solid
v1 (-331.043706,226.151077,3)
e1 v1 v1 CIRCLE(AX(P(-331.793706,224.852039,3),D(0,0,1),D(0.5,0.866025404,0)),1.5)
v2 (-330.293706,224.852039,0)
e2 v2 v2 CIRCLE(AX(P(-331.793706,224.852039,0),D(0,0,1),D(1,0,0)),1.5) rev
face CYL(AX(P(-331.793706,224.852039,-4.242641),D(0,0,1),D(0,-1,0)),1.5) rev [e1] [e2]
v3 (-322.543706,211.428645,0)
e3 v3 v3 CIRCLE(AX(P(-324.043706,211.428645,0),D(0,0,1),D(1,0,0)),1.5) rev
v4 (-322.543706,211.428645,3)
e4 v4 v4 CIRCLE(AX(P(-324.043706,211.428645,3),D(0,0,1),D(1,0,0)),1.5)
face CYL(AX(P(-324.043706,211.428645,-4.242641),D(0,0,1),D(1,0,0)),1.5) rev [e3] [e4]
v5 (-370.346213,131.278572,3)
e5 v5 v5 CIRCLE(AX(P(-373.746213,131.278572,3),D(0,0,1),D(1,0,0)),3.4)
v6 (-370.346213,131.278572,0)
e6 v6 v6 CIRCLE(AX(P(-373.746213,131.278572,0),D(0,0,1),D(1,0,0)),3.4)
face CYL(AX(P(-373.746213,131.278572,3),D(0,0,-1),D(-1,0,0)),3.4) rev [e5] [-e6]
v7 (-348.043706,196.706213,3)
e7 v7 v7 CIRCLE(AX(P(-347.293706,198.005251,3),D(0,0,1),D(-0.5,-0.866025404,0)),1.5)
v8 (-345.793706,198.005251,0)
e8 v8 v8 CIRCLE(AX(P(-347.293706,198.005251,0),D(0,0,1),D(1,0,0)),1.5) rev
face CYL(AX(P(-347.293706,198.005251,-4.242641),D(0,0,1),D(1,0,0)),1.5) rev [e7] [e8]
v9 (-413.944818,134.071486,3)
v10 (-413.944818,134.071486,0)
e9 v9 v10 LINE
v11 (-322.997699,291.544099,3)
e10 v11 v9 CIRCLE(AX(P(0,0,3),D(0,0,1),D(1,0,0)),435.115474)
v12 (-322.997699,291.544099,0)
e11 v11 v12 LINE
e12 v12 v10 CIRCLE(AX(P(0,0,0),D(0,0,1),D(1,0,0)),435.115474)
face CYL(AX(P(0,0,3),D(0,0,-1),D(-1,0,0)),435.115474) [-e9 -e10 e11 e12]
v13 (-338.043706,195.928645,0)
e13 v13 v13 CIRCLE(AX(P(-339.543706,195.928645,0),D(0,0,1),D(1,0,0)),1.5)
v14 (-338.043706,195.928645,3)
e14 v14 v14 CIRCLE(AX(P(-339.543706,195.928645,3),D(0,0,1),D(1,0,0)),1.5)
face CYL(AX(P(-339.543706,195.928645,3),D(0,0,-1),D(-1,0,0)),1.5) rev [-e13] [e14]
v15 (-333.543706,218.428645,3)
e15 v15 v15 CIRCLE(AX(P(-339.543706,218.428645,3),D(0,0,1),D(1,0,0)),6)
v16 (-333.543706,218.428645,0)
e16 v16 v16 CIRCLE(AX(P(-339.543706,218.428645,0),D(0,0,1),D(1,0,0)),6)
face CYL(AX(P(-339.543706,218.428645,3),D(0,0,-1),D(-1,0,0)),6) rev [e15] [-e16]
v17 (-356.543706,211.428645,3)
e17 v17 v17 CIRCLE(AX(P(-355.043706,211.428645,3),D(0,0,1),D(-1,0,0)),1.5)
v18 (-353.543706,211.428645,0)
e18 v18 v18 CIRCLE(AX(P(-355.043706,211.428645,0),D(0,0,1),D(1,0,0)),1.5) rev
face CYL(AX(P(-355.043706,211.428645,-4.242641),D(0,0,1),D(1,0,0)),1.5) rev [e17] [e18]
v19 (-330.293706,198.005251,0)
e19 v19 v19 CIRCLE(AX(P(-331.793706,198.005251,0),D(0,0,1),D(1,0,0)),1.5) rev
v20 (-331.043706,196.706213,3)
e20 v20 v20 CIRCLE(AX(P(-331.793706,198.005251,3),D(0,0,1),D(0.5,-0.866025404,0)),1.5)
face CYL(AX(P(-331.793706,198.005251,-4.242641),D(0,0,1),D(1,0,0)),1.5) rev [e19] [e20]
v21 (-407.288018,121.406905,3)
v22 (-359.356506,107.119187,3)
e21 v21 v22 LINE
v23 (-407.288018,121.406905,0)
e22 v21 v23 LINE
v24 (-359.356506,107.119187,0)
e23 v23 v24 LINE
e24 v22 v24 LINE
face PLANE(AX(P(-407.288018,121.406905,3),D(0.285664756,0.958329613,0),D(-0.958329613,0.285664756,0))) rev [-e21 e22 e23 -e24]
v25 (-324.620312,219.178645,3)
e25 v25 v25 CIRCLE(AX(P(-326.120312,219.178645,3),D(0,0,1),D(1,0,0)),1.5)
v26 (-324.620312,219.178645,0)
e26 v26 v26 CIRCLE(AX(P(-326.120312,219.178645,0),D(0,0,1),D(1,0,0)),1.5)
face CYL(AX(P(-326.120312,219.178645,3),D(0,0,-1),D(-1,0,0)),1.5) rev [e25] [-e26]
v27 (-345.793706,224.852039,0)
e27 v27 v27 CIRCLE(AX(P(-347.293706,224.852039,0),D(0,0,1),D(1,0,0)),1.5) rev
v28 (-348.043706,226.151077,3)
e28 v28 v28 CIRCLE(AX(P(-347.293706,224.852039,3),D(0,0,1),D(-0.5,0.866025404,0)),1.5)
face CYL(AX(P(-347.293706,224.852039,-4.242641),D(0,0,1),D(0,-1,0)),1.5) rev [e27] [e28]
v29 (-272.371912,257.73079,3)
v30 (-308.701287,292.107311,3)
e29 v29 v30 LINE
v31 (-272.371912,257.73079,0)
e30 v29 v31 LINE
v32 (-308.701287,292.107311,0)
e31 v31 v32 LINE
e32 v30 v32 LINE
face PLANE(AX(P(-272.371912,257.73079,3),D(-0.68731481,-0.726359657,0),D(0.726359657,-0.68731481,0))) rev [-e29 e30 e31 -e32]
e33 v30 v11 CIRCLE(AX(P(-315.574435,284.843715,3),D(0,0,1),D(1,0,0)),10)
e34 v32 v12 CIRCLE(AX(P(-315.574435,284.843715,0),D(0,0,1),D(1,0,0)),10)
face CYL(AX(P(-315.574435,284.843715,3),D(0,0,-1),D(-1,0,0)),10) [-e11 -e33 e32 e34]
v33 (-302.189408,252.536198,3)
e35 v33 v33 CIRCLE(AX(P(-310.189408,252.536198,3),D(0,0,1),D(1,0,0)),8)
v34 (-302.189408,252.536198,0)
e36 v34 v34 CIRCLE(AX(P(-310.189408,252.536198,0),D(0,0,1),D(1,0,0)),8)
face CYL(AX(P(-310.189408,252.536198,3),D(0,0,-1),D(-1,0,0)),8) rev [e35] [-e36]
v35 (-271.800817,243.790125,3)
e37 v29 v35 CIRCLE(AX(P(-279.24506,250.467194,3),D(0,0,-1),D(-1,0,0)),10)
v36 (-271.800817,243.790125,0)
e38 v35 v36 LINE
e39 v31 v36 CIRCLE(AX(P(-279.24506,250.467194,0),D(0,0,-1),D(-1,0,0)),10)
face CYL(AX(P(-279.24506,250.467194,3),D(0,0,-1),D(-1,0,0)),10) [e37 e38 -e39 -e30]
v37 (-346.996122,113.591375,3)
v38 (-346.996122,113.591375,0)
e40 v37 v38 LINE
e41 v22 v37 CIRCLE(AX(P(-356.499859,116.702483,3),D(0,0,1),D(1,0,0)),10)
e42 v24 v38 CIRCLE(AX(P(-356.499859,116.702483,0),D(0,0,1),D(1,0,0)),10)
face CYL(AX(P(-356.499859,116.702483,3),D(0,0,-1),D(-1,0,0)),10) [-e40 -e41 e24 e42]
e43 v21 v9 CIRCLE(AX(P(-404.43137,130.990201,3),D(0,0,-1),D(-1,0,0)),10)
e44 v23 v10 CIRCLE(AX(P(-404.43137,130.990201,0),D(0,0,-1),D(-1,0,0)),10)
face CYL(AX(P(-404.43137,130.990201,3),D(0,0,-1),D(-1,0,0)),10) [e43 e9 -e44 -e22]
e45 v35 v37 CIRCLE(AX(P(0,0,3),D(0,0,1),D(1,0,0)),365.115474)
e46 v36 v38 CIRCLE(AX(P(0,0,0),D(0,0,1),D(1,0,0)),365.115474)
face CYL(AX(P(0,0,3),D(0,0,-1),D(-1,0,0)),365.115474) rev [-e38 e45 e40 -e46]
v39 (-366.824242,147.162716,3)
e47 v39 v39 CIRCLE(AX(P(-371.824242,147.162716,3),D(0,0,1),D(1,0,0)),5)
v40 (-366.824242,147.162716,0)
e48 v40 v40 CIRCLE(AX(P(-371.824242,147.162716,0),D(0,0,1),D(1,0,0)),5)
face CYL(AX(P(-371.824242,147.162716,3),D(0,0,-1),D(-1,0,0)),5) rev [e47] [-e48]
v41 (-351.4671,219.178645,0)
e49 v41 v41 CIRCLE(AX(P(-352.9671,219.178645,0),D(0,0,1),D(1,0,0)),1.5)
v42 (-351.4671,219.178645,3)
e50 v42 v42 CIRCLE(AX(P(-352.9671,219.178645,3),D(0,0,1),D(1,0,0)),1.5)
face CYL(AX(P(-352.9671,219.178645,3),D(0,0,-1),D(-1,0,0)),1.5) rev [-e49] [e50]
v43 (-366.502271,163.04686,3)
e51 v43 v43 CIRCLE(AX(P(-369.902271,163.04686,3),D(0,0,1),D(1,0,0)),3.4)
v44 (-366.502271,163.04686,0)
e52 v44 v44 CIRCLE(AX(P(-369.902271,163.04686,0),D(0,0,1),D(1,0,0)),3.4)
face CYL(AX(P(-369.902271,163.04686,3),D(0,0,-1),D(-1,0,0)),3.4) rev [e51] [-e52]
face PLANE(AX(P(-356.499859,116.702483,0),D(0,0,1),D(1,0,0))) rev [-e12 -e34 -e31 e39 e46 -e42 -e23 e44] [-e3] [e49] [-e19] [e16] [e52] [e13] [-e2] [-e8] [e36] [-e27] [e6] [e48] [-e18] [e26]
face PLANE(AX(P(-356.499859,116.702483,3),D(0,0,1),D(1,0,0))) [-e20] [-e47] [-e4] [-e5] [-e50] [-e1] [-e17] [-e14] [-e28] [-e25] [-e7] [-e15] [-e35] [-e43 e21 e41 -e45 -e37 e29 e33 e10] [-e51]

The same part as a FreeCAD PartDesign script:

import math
import FreeCAD as App
import Part
import Sketcher
from FreeCAD import Vector

doc = App.newDocument("Part")
body = doc.addObject("PartDesign::Body", "Body")

# Sketch on XY plane
sketch1 = doc.addObject("Sketcher::SketchObject", "Sketch")
body.addObject(sketch1)
sketch1.AttachmentSupport = (doc.XY_Plane, [""])
sketch1.MapMode = "FlatFace"
sketch1.addGeometry([
    Part.ArcOfCircle(Part.Circle(Vector(-279.2, 250.5, 0), Vector(0, 0, 1), 10), math.radians(-42), math.radians(47)),  # 0
    Part.LineSegment(Vector(-272.4, 257.7, 0), Vector(-308.7, 292.1, 0)),  # 1
    Part.ArcOfCircle(Part.Circle(Vector(-315.6, 284.8, 0), Vector(0, 0, 1), 10), math.radians(47), math.radians(138)),  # 2
    Part.ArcOfCircle(Part.Circle(Vector(0, 0, 0), Vector(0, 0, 1), 435.1), math.radians(138), math.radians(162)),  # 3
    Part.ArcOfCircle(Part.Circle(Vector(-404.4, 131, 0), Vector(0, 0, 1), 10), math.radians(162), math.radians(253)),  # 4
    Part.LineSegment(Vector(-407.3, 121.4, 0), Vector(-359.4, 107.1, 0)),  # 5
    Part.ArcOfCircle(Part.Circle(Vector(-356.5, 116.7, 0), Vector(0, 0, 1), 10), math.radians(-107), math.radians(-18)),  # 6
    Part.ArcOfCircle(Part.Circle(Vector(0, 0, 0), Vector(0, 0, 1), 365.1), math.radians(138), math.radians(162)),  # 7
    Part.Circle(Vector(-373.7, 131.3, 0), Vector(0, 0, 1), 3.4),  # 8
    Part.Circle(Vector(-371.8, 147.2, 0), Vector(0, 0, 1), 5),  # 9
    Part.Circle(Vector(-369.9, 163, 0), Vector(0, 0, 1), 3.4),  # 10
    Part.Circle(Vector(-353, 219.2, 0), Vector(0, 0, 1), 1.5),  # 11
    Part.Circle(Vector(-339.5, 195.9, 0), Vector(0, 0, 1), 1.5),  # 12
    Part.Circle(Vector(-339.5, 218.4, 0), Vector(0, 0, 1), 6),  # 13
    Part.Circle(Vector(-326.1, 219.2, 0), Vector(0, 0, 1), 1.5),  # 14
    Part.Circle(Vector(-310.2, 252.5, 0), Vector(0, 0, 1), 8),  # 15
], False)
sketch1.addConstraint([
    Sketcher.Constraint("Tangent", 0, 2, 1, 1),
    Sketcher.Constraint("Tangent", 1, 2, 2, 1),
    Sketcher.Constraint("Tangent", 2, 2, 3, 1),
    Sketcher.Constraint("Tangent", 3, 2, 4, 1),
    Sketcher.Constraint("Tangent", 4, 2, 5, 1),
    Sketcher.Constraint("Tangent", 5, 2, 6, 1),
    Sketcher.Constraint("Tangent", 6, 2, 7, 2),
    Sketcher.Constraint("Tangent", 7, 1, 0, 1),
    Sketcher.Constraint("Coincident", 3, 3, -1, 1),
    Sketcher.Constraint("Coincident", 7, 3, -1, 1),
    Sketcher.Constraint("Equal", 0, 2),
    Sketcher.Constraint("Equal", 2, 4),
    Sketcher.Constraint("Equal", 4, 6),
    Sketcher.Constraint("Equal", 8, 10),
    Sketcher.Constraint("Equal", 11, 12),
    Sketcher.Constraint("Equal", 12, 14),
    Sketcher.Constraint("Horizontal", 11, 3, 14, 3),
    Sketcher.Constraint("Vertical", 12, 3, 13, 3),
    Sketcher.Constraint("Equal", 1, 5),
    Sketcher.Constraint("Diameter", 9, 10.0),
    Sketcher.Constraint("Diameter", 11, 3.0),
    Sketcher.Constraint("Diameter", 13, 12.0),
    Sketcher.Constraint("Diameter", 15, 16.0),
    Sketcher.Constraint("Radius", 0, 10.0),
    Sketcher.Constraint("Diameter", 8, 6.8),
    Sketcher.Constraint("DistanceY", 12, 3, 13, 3, 22.5),
    Sketcher.Constraint("DistanceY", 12, 3, 11, 3, 23.25),
    Sketcher.Constraint("Radius", 3, 435.115474),
    Sketcher.Constraint("Radius", 7, 365.115474),
    Sketcher.Constraint("DistanceY", 9, 3, 2, 3, 137.680999),
    Sketcher.Constraint("DistanceY", -1, 1, 4, 3, 130.990201),
    Sketcher.Constraint("DistanceX", 11, 3, -1, 1, 352.9671),
    Sketcher.Constraint("DistanceY", -1, 1, 15, 3, 252.536198),
    Sketcher.Constraint("DistanceX", 2, 2, -1, 1, 322.997699),
    Sketcher.Constraint("DistanceX", 6, 3, 0, 3, 77.254799),
    Sketcher.Constraint("DistanceX", 4, 3, 10, 3, 34.529099),
    Sketcher.Constraint("DistanceX", 13, 3, 15, 3, 29.354298),
    Sketcher.Constraint("DistanceX", 14, 3, 0, 2, 53.748401),
    Sketcher.Constraint("DistanceY", -1, 1, 10, 3, 163.04686),
    Sketcher.Constraint("DistanceY", 6, 3, 8, 3, 14.576089),
    Sketcher.Constraint("DistanceX", 8, 3, 2, 3, 58.171778),
    Sketcher.Constraint("DistanceX", 8, 3, 9, 3, 1.921971),
    Sketcher.Constraint("DistanceY", 9, 3, 11, 3, 72.015929),
    Sketcher.Constraint("DistanceX", 13, 3, 2, 3, 23.969271),
])
pad1 = doc.addObject("PartDesign::Pad", "Pad")
body.addObject(pad1)
pad1.Profile = sketch1
pad1.Length = 3

# Sketch on XY plane
sketch2 = doc.addObject("Sketcher::SketchObject", "Sketch001")
body.addObject(sketch2)
sketch2.AttachmentSupport = (doc.XY_Plane, [""])
sketch2.MapMode = "FlatFace"
sketch2.AttachmentOffset = App.Placement(Vector(0, 0, 3), App.Rotation())
sketch2.addGeometry(Part.Circle(Vector(-324, 211.4, 0), Vector(0, 0, 1), 1.5), False)
sketch2.addConstraint([
    Sketcher.Constraint("Diameter", 0, 3.0),
    Sketcher.Constraint("DistanceX", 0, 3, -1, 1, 324.043706),
    Sketcher.Constraint("DistanceY", -1, 1, 0, 3, 211.428645),
])
pocket1 = doc.addObject("PartDesign::Pocket", "Pocket")
body.addObject(pocket1)
pocket1.Profile = sketch2
pocket1.Length = 3
doc.recompute()

datumline = doc.addObject("PartDesign::Line", "DatumLine")
body.addObject(datumline)
datumline.Placement = App.Placement(Vector(-339.543706, 211.428645, 0), App.Rotation(Vector(0, 0, 1), Vector(0, 0, 1)))
polarpattern = doc.addObject("PartDesign::PolarPattern", "PolarPattern")
body.addObject(polarpattern)
polarpattern.Originals = [pocket1]
polarpattern.Axis = (datumline, [""])
polarpattern.Angle = 360
polarpattern.Occurrences = 6
body.Tip = polarpattern

doc.recompute()
